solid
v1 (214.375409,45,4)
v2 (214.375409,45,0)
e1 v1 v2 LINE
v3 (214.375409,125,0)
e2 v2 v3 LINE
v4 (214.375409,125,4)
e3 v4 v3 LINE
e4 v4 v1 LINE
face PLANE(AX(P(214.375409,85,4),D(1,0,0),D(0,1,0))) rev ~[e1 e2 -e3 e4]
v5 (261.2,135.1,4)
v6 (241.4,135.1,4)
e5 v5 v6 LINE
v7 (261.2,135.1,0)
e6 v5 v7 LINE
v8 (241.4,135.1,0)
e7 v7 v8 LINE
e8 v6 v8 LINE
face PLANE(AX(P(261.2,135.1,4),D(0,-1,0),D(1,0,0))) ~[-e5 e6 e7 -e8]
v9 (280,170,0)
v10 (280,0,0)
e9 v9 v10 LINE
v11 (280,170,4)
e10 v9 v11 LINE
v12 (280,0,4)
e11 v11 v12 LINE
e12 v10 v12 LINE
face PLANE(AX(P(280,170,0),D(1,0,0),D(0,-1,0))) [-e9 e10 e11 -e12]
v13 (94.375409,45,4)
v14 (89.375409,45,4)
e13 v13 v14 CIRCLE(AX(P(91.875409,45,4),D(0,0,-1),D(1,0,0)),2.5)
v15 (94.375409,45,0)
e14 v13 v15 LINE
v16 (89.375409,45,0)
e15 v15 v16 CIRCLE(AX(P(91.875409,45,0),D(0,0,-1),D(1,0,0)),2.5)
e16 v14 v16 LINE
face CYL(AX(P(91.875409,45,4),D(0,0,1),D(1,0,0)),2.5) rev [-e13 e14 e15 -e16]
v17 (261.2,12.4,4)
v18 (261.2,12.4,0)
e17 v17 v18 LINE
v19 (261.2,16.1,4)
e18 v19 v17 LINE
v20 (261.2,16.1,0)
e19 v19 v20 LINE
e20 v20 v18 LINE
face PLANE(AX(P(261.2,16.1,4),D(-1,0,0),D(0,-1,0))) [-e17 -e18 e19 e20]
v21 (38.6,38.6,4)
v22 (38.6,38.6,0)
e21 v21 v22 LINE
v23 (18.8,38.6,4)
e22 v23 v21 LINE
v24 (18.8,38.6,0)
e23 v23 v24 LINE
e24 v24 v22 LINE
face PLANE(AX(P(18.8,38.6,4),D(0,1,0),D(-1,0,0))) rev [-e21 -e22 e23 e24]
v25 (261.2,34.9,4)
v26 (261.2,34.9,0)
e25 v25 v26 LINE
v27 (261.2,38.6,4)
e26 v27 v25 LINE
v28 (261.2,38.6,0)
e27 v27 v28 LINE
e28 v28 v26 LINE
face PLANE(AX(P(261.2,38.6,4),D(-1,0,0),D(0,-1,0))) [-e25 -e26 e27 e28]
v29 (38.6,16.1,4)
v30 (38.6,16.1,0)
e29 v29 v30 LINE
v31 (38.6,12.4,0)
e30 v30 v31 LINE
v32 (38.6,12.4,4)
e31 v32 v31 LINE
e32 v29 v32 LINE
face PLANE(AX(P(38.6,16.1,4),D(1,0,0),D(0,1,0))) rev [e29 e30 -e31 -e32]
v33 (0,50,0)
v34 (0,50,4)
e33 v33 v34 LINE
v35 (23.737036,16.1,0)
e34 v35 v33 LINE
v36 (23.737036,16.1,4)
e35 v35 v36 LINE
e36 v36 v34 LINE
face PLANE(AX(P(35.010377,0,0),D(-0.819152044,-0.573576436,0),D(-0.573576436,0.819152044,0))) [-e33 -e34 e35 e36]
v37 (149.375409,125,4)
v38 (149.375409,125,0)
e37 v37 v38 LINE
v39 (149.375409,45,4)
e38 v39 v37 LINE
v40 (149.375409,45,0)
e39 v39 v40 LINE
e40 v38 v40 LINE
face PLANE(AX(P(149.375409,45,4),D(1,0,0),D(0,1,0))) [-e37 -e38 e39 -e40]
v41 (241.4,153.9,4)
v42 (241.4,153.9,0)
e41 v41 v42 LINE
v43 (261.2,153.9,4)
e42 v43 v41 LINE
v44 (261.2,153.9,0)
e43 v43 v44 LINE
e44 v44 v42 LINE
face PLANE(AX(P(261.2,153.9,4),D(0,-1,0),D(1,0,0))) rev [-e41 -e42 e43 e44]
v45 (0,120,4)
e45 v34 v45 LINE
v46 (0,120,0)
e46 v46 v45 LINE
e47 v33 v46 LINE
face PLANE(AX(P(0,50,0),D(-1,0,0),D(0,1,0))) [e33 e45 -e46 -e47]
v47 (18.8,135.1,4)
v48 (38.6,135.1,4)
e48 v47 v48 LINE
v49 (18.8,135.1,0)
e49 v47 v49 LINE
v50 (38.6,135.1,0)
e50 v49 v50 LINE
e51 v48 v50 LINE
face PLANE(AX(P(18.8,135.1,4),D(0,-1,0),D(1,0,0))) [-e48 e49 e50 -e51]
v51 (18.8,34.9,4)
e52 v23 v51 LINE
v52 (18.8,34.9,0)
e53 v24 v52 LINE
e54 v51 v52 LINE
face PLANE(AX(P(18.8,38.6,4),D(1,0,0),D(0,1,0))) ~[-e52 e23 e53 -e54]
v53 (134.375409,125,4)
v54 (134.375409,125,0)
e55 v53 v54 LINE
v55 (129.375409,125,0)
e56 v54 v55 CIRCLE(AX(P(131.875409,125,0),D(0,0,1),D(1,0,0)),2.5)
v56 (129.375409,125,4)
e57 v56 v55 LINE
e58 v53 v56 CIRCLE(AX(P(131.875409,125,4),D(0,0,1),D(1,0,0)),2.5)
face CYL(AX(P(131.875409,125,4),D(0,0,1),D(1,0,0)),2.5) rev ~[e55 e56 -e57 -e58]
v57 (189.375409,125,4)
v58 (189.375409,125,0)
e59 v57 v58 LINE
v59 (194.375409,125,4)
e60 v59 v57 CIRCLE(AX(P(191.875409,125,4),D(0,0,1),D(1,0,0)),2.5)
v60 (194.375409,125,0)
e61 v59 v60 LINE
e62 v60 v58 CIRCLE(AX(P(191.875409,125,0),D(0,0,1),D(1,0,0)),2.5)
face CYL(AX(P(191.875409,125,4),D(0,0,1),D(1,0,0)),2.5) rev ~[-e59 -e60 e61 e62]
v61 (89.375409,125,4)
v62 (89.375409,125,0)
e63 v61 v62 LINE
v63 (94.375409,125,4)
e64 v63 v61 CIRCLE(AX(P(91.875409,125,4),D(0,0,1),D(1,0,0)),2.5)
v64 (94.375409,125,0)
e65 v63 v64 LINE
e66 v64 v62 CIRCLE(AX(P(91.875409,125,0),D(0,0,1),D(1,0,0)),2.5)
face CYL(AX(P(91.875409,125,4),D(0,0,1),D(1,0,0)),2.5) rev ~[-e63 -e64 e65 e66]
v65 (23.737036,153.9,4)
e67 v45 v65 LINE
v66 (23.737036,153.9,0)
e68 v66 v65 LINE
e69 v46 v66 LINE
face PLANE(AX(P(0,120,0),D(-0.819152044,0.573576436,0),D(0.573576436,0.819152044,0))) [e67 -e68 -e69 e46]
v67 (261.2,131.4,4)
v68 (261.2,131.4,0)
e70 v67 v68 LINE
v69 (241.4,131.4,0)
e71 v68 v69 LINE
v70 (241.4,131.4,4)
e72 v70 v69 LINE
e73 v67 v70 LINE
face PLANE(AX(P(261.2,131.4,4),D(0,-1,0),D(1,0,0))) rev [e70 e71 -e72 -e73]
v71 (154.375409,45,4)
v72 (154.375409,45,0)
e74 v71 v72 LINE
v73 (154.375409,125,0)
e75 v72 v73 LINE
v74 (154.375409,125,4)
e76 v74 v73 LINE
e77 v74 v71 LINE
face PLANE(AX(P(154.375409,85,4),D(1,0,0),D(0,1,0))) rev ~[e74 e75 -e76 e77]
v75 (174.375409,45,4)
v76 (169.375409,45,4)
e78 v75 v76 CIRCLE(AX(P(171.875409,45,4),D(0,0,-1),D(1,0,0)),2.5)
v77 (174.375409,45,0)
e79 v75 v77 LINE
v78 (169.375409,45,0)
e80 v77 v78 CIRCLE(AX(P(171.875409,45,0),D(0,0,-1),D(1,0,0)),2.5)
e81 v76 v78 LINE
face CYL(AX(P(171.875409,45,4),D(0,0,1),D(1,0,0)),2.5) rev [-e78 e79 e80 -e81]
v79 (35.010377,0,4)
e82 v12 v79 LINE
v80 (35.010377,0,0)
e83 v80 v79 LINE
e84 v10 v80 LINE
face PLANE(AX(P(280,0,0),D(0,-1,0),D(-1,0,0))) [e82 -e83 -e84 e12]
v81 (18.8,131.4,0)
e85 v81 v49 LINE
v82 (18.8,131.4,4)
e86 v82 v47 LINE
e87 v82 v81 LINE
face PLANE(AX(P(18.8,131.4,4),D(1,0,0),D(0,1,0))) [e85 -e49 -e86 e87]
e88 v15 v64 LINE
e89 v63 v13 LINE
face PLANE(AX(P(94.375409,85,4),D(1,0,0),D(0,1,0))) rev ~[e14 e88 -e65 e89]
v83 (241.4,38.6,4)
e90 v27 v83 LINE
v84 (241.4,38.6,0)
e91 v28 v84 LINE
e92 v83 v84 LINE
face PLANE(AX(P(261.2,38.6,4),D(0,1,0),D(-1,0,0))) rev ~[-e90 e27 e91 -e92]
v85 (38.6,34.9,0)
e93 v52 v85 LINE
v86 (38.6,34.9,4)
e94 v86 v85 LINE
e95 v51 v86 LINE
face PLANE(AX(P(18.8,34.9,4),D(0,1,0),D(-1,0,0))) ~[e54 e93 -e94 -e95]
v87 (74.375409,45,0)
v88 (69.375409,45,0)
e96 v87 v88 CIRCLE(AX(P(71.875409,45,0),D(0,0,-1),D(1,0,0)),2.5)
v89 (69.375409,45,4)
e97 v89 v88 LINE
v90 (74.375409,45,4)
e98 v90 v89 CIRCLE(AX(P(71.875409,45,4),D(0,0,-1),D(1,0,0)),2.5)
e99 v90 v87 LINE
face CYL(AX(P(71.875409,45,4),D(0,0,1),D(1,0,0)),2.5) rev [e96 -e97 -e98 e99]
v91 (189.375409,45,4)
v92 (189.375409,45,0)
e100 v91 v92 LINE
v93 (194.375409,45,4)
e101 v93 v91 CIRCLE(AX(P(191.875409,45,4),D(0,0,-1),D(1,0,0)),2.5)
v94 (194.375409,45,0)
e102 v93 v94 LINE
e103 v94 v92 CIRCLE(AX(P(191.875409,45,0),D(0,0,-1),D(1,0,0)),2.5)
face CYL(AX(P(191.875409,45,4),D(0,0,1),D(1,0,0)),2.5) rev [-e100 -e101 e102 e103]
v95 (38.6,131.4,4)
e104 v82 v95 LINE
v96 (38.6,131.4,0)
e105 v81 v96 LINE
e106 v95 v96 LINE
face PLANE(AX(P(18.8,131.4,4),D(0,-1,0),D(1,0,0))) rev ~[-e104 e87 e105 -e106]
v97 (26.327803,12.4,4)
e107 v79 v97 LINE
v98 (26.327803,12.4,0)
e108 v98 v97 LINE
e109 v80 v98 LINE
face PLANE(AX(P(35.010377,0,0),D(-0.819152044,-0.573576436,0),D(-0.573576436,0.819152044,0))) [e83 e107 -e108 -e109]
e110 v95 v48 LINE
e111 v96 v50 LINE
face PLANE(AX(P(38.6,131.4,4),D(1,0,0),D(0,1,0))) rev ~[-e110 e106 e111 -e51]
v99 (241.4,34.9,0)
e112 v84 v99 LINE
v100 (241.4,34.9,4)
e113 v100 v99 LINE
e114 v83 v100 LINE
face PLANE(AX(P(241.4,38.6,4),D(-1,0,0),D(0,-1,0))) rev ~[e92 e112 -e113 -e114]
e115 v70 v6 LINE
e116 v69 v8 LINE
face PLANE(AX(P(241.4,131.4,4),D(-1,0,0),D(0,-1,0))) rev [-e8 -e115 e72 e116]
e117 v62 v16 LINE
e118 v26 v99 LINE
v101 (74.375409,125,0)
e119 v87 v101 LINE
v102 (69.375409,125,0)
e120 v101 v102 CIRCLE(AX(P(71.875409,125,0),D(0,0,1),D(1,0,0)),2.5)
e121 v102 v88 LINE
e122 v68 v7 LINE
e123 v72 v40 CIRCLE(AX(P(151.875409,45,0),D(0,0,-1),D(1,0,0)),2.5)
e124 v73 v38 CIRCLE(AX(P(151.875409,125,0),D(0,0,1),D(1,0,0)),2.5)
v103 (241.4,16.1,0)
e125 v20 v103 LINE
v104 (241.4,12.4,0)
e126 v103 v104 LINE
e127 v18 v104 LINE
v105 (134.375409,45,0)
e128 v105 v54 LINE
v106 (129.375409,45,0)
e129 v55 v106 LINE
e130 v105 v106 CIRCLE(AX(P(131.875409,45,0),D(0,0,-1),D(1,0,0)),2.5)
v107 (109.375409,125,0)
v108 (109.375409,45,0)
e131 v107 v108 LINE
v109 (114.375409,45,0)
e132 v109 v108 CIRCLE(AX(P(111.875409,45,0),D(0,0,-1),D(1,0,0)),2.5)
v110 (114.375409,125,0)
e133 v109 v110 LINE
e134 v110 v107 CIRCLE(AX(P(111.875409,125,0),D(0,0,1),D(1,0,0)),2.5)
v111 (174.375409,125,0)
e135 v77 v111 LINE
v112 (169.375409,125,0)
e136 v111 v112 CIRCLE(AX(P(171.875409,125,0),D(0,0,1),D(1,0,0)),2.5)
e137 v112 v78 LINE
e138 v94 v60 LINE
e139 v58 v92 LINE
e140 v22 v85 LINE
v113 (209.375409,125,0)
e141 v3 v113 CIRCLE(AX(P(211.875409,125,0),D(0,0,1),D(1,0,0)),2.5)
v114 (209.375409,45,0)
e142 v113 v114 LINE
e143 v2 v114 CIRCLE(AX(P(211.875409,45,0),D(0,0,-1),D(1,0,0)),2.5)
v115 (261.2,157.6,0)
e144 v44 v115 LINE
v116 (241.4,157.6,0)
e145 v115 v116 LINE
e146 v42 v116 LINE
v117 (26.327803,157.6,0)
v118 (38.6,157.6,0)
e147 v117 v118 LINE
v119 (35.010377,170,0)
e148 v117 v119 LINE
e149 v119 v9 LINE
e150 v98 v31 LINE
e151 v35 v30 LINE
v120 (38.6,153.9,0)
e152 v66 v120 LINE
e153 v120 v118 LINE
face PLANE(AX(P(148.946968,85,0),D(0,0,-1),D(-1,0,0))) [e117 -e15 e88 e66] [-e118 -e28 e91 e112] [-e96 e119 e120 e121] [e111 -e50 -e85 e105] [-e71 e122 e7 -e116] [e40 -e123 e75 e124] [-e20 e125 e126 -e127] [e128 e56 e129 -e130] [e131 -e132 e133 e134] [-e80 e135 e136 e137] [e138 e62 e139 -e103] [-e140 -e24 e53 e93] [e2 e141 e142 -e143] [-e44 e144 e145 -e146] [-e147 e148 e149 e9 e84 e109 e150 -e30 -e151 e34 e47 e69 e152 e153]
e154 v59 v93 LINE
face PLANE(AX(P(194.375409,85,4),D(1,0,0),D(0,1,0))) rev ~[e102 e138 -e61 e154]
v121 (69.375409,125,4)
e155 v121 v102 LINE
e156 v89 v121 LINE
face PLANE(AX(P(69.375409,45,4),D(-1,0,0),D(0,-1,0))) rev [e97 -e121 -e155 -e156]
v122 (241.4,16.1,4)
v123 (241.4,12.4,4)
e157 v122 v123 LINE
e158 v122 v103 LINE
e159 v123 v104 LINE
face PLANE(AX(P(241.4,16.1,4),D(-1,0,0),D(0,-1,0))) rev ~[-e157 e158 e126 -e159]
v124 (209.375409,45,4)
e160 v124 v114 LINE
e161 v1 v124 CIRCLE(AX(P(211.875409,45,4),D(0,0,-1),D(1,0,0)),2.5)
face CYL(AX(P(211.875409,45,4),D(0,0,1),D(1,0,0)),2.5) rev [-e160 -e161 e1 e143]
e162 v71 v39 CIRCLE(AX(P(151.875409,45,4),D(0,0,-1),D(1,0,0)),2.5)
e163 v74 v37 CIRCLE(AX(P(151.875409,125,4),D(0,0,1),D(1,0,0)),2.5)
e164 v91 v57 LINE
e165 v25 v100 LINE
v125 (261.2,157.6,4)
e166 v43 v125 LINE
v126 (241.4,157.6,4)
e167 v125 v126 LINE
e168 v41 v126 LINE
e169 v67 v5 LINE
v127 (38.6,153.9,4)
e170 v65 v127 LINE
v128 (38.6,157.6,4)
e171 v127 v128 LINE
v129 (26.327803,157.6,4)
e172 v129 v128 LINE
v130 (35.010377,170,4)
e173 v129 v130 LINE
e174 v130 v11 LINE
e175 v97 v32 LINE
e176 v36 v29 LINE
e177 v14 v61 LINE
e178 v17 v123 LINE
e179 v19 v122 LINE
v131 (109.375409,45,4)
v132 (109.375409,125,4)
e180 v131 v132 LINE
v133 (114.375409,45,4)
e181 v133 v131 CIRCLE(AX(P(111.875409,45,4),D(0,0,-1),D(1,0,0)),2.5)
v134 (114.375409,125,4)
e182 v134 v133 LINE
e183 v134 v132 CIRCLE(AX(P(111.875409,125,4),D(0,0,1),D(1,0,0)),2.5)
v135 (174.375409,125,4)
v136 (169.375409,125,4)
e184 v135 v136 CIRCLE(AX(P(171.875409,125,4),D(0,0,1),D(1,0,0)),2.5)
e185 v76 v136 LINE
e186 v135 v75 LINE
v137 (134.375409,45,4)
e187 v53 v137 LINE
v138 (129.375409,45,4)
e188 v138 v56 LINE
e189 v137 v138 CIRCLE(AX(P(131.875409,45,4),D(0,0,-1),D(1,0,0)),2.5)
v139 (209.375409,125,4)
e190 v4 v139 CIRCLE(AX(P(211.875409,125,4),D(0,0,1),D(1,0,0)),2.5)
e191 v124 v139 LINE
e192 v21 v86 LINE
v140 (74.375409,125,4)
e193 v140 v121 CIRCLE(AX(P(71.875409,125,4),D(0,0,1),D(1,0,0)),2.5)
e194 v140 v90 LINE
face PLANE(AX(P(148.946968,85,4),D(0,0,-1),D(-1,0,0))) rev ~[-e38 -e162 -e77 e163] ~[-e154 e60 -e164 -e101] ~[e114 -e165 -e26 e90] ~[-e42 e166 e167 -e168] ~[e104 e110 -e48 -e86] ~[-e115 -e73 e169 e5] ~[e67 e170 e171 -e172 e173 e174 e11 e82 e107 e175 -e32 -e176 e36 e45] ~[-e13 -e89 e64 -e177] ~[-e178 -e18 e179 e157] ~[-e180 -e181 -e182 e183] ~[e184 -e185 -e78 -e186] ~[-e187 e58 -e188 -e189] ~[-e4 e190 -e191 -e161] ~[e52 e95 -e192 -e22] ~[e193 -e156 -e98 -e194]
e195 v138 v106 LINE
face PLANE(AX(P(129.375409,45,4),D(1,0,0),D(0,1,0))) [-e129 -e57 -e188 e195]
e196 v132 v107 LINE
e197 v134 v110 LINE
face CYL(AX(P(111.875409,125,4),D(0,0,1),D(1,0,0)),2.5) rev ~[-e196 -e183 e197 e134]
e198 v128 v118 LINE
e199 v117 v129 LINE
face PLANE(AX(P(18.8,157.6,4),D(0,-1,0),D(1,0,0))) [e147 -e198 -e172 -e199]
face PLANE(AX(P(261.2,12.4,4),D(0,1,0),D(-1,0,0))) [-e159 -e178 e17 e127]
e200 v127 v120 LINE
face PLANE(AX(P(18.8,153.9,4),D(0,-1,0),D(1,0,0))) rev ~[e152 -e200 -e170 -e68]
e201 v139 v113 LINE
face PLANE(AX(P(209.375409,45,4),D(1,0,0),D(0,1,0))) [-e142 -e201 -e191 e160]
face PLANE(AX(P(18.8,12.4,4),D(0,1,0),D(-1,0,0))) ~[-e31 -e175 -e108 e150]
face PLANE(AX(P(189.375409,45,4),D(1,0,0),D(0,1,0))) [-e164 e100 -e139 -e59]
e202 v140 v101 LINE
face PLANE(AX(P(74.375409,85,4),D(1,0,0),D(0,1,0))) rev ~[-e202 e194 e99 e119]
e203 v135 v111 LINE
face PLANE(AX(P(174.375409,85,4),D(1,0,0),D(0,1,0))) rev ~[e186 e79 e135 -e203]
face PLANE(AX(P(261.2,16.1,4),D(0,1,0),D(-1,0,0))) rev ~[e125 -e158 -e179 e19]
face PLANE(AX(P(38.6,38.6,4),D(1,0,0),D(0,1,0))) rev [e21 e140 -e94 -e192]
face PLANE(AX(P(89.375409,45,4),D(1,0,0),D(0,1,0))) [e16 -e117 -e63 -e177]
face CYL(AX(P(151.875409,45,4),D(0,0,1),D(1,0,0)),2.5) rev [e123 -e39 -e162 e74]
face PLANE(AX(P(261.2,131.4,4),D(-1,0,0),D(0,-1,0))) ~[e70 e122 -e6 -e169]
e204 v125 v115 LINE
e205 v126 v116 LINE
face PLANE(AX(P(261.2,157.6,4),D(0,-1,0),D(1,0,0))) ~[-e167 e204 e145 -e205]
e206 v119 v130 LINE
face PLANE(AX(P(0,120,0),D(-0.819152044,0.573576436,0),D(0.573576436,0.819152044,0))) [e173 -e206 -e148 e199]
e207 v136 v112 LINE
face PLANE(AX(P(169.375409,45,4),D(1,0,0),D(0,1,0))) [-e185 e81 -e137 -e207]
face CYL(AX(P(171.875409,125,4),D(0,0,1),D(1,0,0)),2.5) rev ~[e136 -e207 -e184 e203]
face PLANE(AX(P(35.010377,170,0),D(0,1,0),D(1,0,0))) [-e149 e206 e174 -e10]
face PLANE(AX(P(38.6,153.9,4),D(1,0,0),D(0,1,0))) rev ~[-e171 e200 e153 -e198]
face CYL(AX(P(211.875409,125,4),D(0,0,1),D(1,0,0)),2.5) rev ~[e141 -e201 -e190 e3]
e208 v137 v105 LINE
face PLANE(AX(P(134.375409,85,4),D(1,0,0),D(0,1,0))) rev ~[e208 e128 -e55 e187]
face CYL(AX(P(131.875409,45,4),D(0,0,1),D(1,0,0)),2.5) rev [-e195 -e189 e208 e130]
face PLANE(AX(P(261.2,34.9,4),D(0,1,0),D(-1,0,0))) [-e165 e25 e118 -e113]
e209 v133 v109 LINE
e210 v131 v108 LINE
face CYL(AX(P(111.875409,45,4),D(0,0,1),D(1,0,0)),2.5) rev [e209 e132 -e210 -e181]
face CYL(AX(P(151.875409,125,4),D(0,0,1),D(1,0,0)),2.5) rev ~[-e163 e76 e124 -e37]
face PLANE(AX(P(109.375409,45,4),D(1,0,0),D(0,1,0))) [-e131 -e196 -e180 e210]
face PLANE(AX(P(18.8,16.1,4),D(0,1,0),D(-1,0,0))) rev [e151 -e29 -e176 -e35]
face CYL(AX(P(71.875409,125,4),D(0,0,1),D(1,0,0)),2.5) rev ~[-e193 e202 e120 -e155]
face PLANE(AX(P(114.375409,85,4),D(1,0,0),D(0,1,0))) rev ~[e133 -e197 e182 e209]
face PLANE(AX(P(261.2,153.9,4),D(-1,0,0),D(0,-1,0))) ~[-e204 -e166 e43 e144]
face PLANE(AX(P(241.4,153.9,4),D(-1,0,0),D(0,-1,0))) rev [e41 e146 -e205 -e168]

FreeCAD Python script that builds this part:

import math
import FreeCAD as App
import Part
import Sketcher
Q = App.Units.Quantity

doc = App.newDocument("Part")
body = doc.addObject("PartDesign::Body", "Body")

# Sketch on XY plane
sketch1 = body.newObject("Sketcher::SketchObject", "Sketch")
sketch1.AttachmentSupport = (doc.getObject("XY_Plane"), [""])
sketch1.MapMode = "FlatFace"
sketch1.addGeometry(Part.LineSegment(App.Vector(0, 50, 0), App.Vector(35.010377, 0, 0)), False)
sketch1.addGeometry(Part.LineSegment(App.Vector(35.010377, 0, 0), App.Vector(280, 0, 0)), False)
sketch1.addGeometry(Part.LineSegment(App.Vector(280, 0, 0), App.Vector(280, 170, 0)), False)
sketch1.addGeometry(Part.LineSegment(App.Vector(280, 170, 0), App.Vector(35.010377, 170, 0)), False)
sketch1.addGeometry(Part.LineSegment(App.Vector(35.010377, 170, 0), App.Vector(0, 120, 0)), False)
sketch1.addGeometry(Part.LineSegment(App.Vector(0, 120, 0), App.Vector(0, 50, 0)), False)
sketch1.addConstraint(Sketcher.Constraint("Coincident", 0, 2, 1, 1))
sketch1.addConstraint(Sketcher.Constraint("Coincident", 1, 2, 2, 1))
sketch1.addConstraint(Sketcher.Constraint("Coincident", 2, 2, 3, 1))
sketch1.addConstraint(Sketcher.Constraint("Coincident", 3, 2, 4, 1))
sketch1.addConstraint(Sketcher.Constraint("Coincident", 4, 2, 5, 1))
sketch1.addConstraint(Sketcher.Constraint("Coincident", 5, 2, 0, 1))
sketch1.addConstraint(Sketcher.Constraint("Horizontal", 1))
sketch1.addConstraint(Sketcher.Constraint("Vertical", 2))
sketch1.addConstraint(Sketcher.Constraint("Horizontal", 3))
sketch1.addConstraint(Sketcher.Constraint("Vertical", 5))
sketch1.addConstraint(Sketcher.Constraint("PointOnObject", 0, 2, -1))
sketch1.addConstraint(Sketcher.Constraint("PointOnObject", 4, 2, -2))
sketch1.addConstraint(Sketcher.Constraint("Vertical", 0, 2, 3, 2))
sketch1.addConstraint(Sketcher.Constraint("Equal", 0, 4))
sketch1.addConstraint(Sketcher.Constraint("DistanceY", 2, 1, 2, 2, 170.0))
sketch1.addConstraint(Sketcher.Constraint("DistanceY", 5, 2, 5, 1, 70.0))
sketch1.addConstraint(Sketcher.Constraint("Angle", 0, Q("-55 deg")))
sketch1.addConstraint(Sketcher.Constraint("DistanceX", -1, 1, 1, 2, 280.0))
pad1 = body.newObject("PartDesign::Pad", "Pad")
pad1.Profile = sketch1
pad1.Length = 4

# Sketch on XY plane
sketch2 = body.newObject("Sketcher::SketchObject", "Sketch001")
sketch2.AttachmentSupport = (doc.getObject("XY_Plane"), [""])
sketch2.MapMode = "FlatFace"
sketch2.AttachmentOffset = App.Placement(App.Vector(0, 0, 4), App.Rotation())
sketch2.addGeometry(Part.LineSegment(App.Vector(18.8, 157.6, 0), App.Vector(18.8, 153.9, 0)), False)
sketch2.addGeometry(Part.LineSegment(App.Vector(18.8, 153.9, 0), App.Vector(38.6, 153.9, 0)), False)
sketch2.addGeometry(Part.LineSegment(App.Vector(38.6, 153.9, 0), App.Vector(38.6, 157.6, 0)), False)
sketch2.addGeometry(Part.LineSegment(App.Vector(38.6, 157.6, 0), App.Vector(18.8, 157.6, 0)), False)
sketch2.addGeometry(Part.LineSegment(App.Vector(18.8, 135.1, 0), App.Vector(18.8, 131.4, 0)), False)
sketch2.addGeometry(Part.LineSegment(App.Vector(18.8, 131.4, 0), App.Vector(38.6, 131.4, 0)), False)
sketch2.addGeometry(Part.LineSegment(App.Vector(38.6, 131.4, 0), App.Vector(38.6, 135.1, 0)), False)
sketch2.addGeometry(Part.LineSegment(App.Vector(38.6, 135.1, 0), App.Vector(18.8, 135.1, 0)), False)
sketch2.addConstraint(Sketcher.Constraint("Coincident", 0, 2, 1, 1))
sketch2.addConstraint(Sketcher.Constraint("Coincident", 1, 2, 2, 1))
sketch2.addConstraint(Sketcher.Constraint("Coincident", 2, 2, 3, 1))
sketch2.addConstraint(Sketcher.Constraint("Coincident", 3, 2, 0, 1))
sketch2.addConstraint(Sketcher.Constraint("Coincident", 4, 2, 5, 1))
sketch2.addConstraint(Sketcher.Constraint("Coincident", 5, 2, 6, 1))
sketch2.addConstraint(Sketcher.Constraint("Coincident", 6, 2, 7, 1))
sketch2.addConstraint(Sketcher.Constraint("Coincident", 7, 2, 4, 1))
sketch2.addConstraint(Sketcher.Constraint("Vertical", 0))
sketch2.addConstraint(Sketcher.Constraint("Horizontal", 1))
sketch2.addConstraint(Sketcher.Constraint("Vertical", 2))
sketch2.addConstraint(Sketcher.Constraint("Horizontal", 3))
sketch2.addConstraint(Sketcher.Constraint("Vertical", 4))
sketch2.addConstraint(Sketcher.Constraint("Horizontal", 5))
sketch2.addConstraint(Sketcher.Constraint("Vertical", 6))
sketch2.addConstraint(Sketcher.Constraint("Horizontal", 7))
sketch2.addConstraint(Sketcher.Constraint("Vertical", 3, 2, 4, 2))
sketch2.addConstraint(Sketcher.Constraint("Vertical", 2, 2, 5, 2))
sketch2.addConstraint(Sketcher.Constraint("Equal", 2, 4))
sketch2.addConstraint(Sketcher.Constraint("DistanceX", 1, 1, 1, 2, 19.8))
sketch2.addConstraint(Sketcher.Constraint("DistanceY", 0, 2, 0, 1, 3.7))
sketch2.addConstraint(Sketcher.Constraint("DistanceX", -1, 1, 0, 2, 18.8))
sketch2.addConstraint(Sketcher.Constraint("DistanceY", -1, 1, 0, 2, 153.9))
sketch2.addConstraint(Sketcher.Constraint("DistanceY", -1, 1, 4, 2, 131.4))
pocket1 = body.newObject("PartDesign::Pocket", "Pocket")
pocket1.Profile = sketch2
pocket1.Length = 4
doc.recompute()

datumplane = body.newObject("PartDesign::Plane", "DatumPlane")
datumplane.AttachmentSupport = (doc.getObject("XZ_Plane"), [""])
datumplane.MapMode = "FlatFace"
datumplane.AttachmentOffset = App.Placement(App.Vector(0, 0, -85), App.Rotation())
mirrored = body.newObject("PartDesign::Mirrored", "Mirrored")
mirrored.Originals = [pocket1]
mirrored.MirrorPlane = (datumplane, [""])
body.Tip = mirrored
doc.recompute()

datumplane2 = body.newObject("PartDesign::Plane", "DatumPlane001")
datumplane2.AttachmentSupport = (doc.getObject("YZ_Plane"), [""])
datumplane2.MapMode = "FlatFace"
datumplane2.AttachmentOffset = App.Placement(App.Vector(0, 0, 140), App.Rotation())
mirrored2 = body.newObject("PartDesign::Mirrored", "Mirrored001")
mirrored2.Originals = [pocket1]
mirrored2.MirrorPlane = (datumplane2, [""])
body.Tip = mirrored2

# Sketch on XY plane
sketch3 = body.newObject("Sketcher::SketchObject", "Sketch002")
sketch3.AttachmentSupport = (doc.getObject("XY_Plane"), [""])
sketch3.MapMode = "FlatFace"
sketch3.AttachmentOffset = App.Placement(App.Vector(0, 0, 4), App.Rotation())
sketch3.addGeometry(Part.LineSegment(App.Vector(261.2, 12.4, 0), App.Vector(261.2, 16.1, 0)), False)
sketch3.addGeometry(Part.LineSegment(App.Vector(261.2, 16.1, 0), App.Vector(241.4, 16.1, 0)), False)
sketch3.addGeometry(Part.LineSegment(App.Vector(241.4, 16.1, 0), App.Vector(241.4, 12.4, 0)), False)
sketch3.addGeometry(Part.LineSegment(App.Vector(241.4, 12.4, 0), App.Vector(261.2, 12.4, 0)), False)
sketch3.addGeometry(Part.LineSegment(App.Vector(261.2, 34.9, 0), App.Vector(261.2, 38.6, 0)), False)
sketch3.addGeometry(Part.LineSegment(App.Vector(261.2, 38.6, 0), App.Vector(241.4, 38.6, 0)), False)
sketch3.addGeometry(Part.LineSegment(App.Vector(241.4, 38.6, 0), App.Vector(241.4, 34.9, 0)), False)
sketch3.addGeometry(Part.LineSegment(App.Vector(241.4, 34.9, 0), App.Vector(261.2, 34.9, 0)), False)
sketch3.addConstraint(Sketcher.Constraint("Coincident", 0, 2, 1, 1))
sketch3.addConstraint(Sketcher.Constraint("Coincident", 1, 2, 2, 1))
sketch3.addConstraint(Sketcher.Constraint("Coincident", 2, 2, 3, 1))
sketch3.addConstraint(Sketcher.Constraint("Coincident", 3, 2, 0, 1))
sketch3.addConstraint(Sketcher.Constraint("Coincident", 4, 2, 5, 1))
sketch3.addConstraint(Sketcher.Constraint("Coincident", 5, 2, 6, 1))
sketch3.addConstraint(Sketcher.Constraint("Coincident", 6, 2, 7, 1))
sketch3.addConstraint(Sketcher.Constraint("Coincident", 7, 2, 4, 1))
sketch3.addConstraint(Sketcher.Constraint("Vertical", 0))
sketch3.addConstraint(Sketcher.Constraint("Horizontal", 1))
sketch3.addConstraint(Sketcher.Constraint("Vertical", 2))
sketch3.addConstraint(Sketcher.Constraint("Horizontal", 3))
sketch3.addConstraint(Sketcher.Constraint("Vertical", 4))
sketch3.addConstraint(Sketcher.Constraint("Horizontal", 5))
sketch3.addConstraint(Sketcher.Constraint("Vertical", 6))
sketch3.addConstraint(Sketcher.Constraint("Horizontal", 7))
sketch3.addConstraint(Sketcher.Constraint("Vertical", 3, 2, 4, 2))
sketch3.addConstraint(Sketcher.Constraint("Vertical", 2, 2, 5, 2))
sketch3.addConstraint(Sketcher.Constraint("Equal", 2, 4))
sketch3.addConstraint(Sketcher.Constraint("DistanceX", 1, 2, 1, 1, 19.8))
sketch3.addConstraint(Sketcher.Constraint("DistanceY", 0, 1, 0, 2, 3.7))
sketch3.addConstraint(Sketcher.Constraint("DistanceX", -1, 1, 0, 2, 261.2))
sketch3.addConstraint(Sketcher.Constraint("DistanceY", -1, 1, 0, 2, 16.1))
sketch3.addConstraint(Sketcher.Constraint("DistanceY", -1, 1, 4, 2, 38.6))
pocket2 = body.newObject("PartDesign::Pocket", "Pocket001")
pocket2.Profile = sketch3
pocket2.Length = 4

# Sketch on XY plane
sketch4 = body.newObject("Sketcher::SketchObject", "Sketch003")
sketch4.AttachmentSupport = (doc.getObject("XY_Plane"), [""])
sketch4.MapMode = "FlatFace"
sketch4.AttachmentOffset = App.Placement(App.Vector(0, 0, 4), App.Rotation())
sketch4.addGeometry(Part.LineSegment(App.Vector(69.375409, 85, 0), App.Vector(74.375409, 85, 0)), False)
sketch4.addGeometry(Part.LineSegment(App.Vector(74.375409, 85, 0), App.Vector(74.375409, 125, 0)), False)
sketch4.addGeometry(Part.ArcOfCircle(Part.Circle(App.Vector(71.875409, 125, 0), App.Vector(0, 0, 1), 2.5), math.radians(0), math.radians(180)), False)
sketch4.addGeometry(Part.LineSegment(App.Vector(69.375409, 125, 0), App.Vector(69.375409, 85, 0)), False)
sketch4.addConstraint(Sketcher.Constraint("Coincident", 0, 2, 1, 1))
sketch4.addConstraint(Sketcher.Constraint("Tangent", 1, 2, 2, 1))
sketch4.addConstraint(Sketcher.Constraint("Tangent", 2, 2, 3, 1))
sketch4.addConstraint(Sketcher.Constraint("Coincident", 3, 2, 0, 1))
sketch4.addConstraint(Sketcher.Constraint("Horizontal", 0))
sketch4.addConstraint(Sketcher.Constraint("Vertical", 1))
sketch4.addConstraint(Sketcher.Constraint("Vertical", 3))
sketch4.addConstraint(Sketcher.Constraint("Radius", 2, 2.5))
sketch4.addConstraint(Sketcher.Constraint("DistanceY", 1, 1, 1, 2, 40.0))
sketch4.addConstraint(Sketcher.Constraint("DistanceY", -1, 1, 2, 3, 125.0))
sketch4.addConstraint(Sketcher.Constraint("DistanceX", -1, 1, 2, 3, 71.875409))
pocket3 = body.newObject("PartDesign::Pocket", "Pocket002")
pocket3.Profile = sketch4
pocket3.Length = 4
doc.recompute()

datumplane3 = body.newObject("PartDesign::Plane", "DatumPlane002")
datumplane3.AttachmentSupport = (doc.getObject("XZ_Plane"), [""])
datumplane3.MapMode = "FlatFace"
datumplane3.AttachmentOffset = App.Placement(App.Vector(0, 0, -85), App.Rotation())
mirrored3 = body.newObject("PartDesign::Mirrored", "Mirrored002")
mirrored3.Originals = [pocket3]
mirrored3.MirrorPlane = (datumplane3, [""])
body.Tip = mirrored3
doc.recompute()

linearpattern = body.newObject("PartDesign::LinearPattern", "LinearPattern")
linearpattern.Originals = [pocket3]
linearpattern.Direction = (doc.getObject("X_Axis"), [""])
linearpattern.Mode = "offset"
linearpattern.Offset = 20
linearpattern.Occurrences = 8
body.Tip = linearpattern

# Sketch on XY plane
sketch5 = body.newObject("Sketcher::SketchObject", "Sketch004")
sketch5.AttachmentSupport = (doc.getObject("XY_Plane"), [""])
sketch5.MapMode = "FlatFace"
sketch5.AttachmentOffset = App.Placement(App.Vector(0, 0, 4), App.Rotation())
sketch5.addGeometry(Part.LineSegment(App.Vector(94.375409, 85, 0), App.Vector(89.375409, 85, 0)), False)
sketch5.addGeometry(Part.LineSegment(App.Vector(89.375409, 85, 0), App.Vector(89.375409, 45, 0)), False)
sketch5.addGeometry(Part.ArcOfCircle(Part.Circle(App.Vector(91.875409, 45, 0), App.Vector(0, 0, 1), 2.5), math.radians(180), math.radians(360)), False)
sketch5.addGeometry(Part.LineSegment(App.Vector(94.375409, 45, 0), App.Vector(94.375409, 85, 0)), False)
sketch5.addConstraint(Sketcher.Constraint("Coincident", 0, 2, 1, 1))
sketch5.addConstraint(Sketcher.Constraint("Tangent", 1, 2, 2, 1))
sketch5.addConstraint(Sketcher.Constraint("Tangent", 2, 2, 3, 1))
sketch5.addConstraint(Sketcher.Constraint("Coincident", 3, 2, 0, 1))
sketch5.addConstraint(Sketcher.Constraint("Horizontal", 0))
sketch5.addConstraint(Sketcher.Constraint("Vertical", 1))
sketch5.addConstraint(Sketcher.Constraint("Vertical", 3))
sketch5.addConstraint(Sketcher.Constraint("Radius", 2, 2.5))
sketch5.addConstraint(Sketcher.Constraint("DistanceY", 1, 2, 1, 1, 40.0))
sketch5.addConstraint(Sketcher.Constraint("DistanceY", -1, 1, 2, 3, 45.0))
sketch5.addConstraint(Sketcher.Constraint("DistanceX", -1, 1, 2, 3, 91.875409))
pocket4 = body.newObject("PartDesign::Pocket", "Pocket003")
pocket4.Profile = sketch5
pocket4.Length = 4

# Sketch on XY plane
sketch6 = body.newObject("Sketcher::SketchObject", "Sketch005")
sketch6.AttachmentSupport = (doc.getObject("XY_Plane"), [""])
sketch6.MapMode = "FlatFace"
sketch6.AttachmentOffset = App.Placement(App.Vector(0, 0, 4), App.Rotation())
sketch6.addGeometry(Part.LineSegment(App.Vector(114.375409, 85, 0), App.Vector(109.375409, 85, 0)), False)
sketch6.addGeometry(Part.LineSegment(App.Vector(109.375409, 85, 0), App.Vector(109.375409, 45, 0)), False)
sketch6.addGeometry(Part.ArcOfCircle(Part.Circle(App.Vector(111.875409, 45, 0), App.Vector(0, 0, 1), 2.5), math.radians(180), math.radians(360)), False)
sketch6.addGeometry(Part.LineSegment(App.Vector(114.375409, 45, 0), App.Vector(114.375409, 85, 0)), False)
sketch6.addConstraint(Sketcher.Constraint("Coincident", 0, 2, 1, 1))
sketch6.addConstraint(Sketcher.Constraint("Tangent", 1, 2, 2, 1))
sketch6.addConstraint(Sketcher.Constraint("Tangent", 2, 2, 3, 1))
sketch6.addConstraint(Sketcher.Constraint("Coincident", 3, 2, 0, 1))
sketch6.addConstraint(Sketcher.Constraint("Horizontal", 0))
sketch6.addConstraint(Sketcher.Constraint("Vertical", 1))
sketch6.addConstraint(Sketcher.Constraint("Vertical", 3))
sketch6.addConstraint(Sketcher.Constraint("Radius", 2, 2.5))
sketch6.addConstraint(Sketcher.Constraint("DistanceY", 1, 2, 1, 1, 40.0))
sketch6.addConstraint(Sketcher.Constraint("DistanceY", -1, 1, 2, 3, 45.0))
sketch6.addConstraint(Sketcher.Constraint("DistanceX", -1, 1, 2, 3, 111.875409))
pocket5 = body.newObject("PartDesign::Pocket", "Pocket004")
pocket5.Profile = sketch6
pocket5.Length = 4

# Sketch on XY plane
sketch7 = body.newObject("Sketcher::SketchObject", "Sketch006")
sketch7.AttachmentSupport = (doc.getObject("XY_Plane"), [""])
sketch7.MapMode = "FlatFace"
sketch7.AttachmentOffset = App.Placement(App.Vector(0, 0, 4), App.Rotation())
sketch7.addGeometry(Part.LineSegment(App.Vector(134.375409, 85, 0), App.Vector(129.375409, 85, 0)), False)
sketch7.addGeometry(Part.LineSegment(App.Vector(129.375409, 85, 0), App.Vector(129.375409, 45, 0)), False)
sketch7.addGeometry(Part.ArcOfCircle(Part.Circle(App.Vector(131.875409, 45, 0), App.Vector(0, 0, 1), 2.5), math.radians(180), math.radians(360)), False)
sketch7.addGeometry(Part.LineSegment(App.Vector(134.375409, 45, 0), App.Vector(134.375409, 85, 0)), False)
sketch7.addConstraint(Sketcher.Constraint("Coincident", 0, 2, 1, 1))
sketch7.addConstraint(Sketcher.Constraint("Tangent", 1, 2, 2, 1))
sketch7.addConstraint(Sketcher.Constraint("Tangent", 2, 2, 3, 1))
sketch7.addConstraint(Sketcher.Constraint("Coincident", 3, 2, 0, 1))
sketch7.addConstraint(Sketcher.Constraint("Horizontal", 0))
sketch7.addConstraint(Sketcher.Constraint("Vertical", 1))
sketch7.addConstraint(Sketcher.Constraint("Vertical", 3))
sketch7.addConstraint(Sketcher.Constraint("Radius", 2, 2.5))
sketch7.addConstraint(Sketcher.Constraint("DistanceY", 1, 2, 1, 1, 40.0))
sketch7.addConstraint(Sketcher.Constraint("DistanceY", -1, 1, 2, 3, 45.0))
sketch7.addConstraint(Sketcher.Constraint("DistanceX", -1, 1, 2, 3, 131.875409))
pocket6 = body.newObject("PartDesign::Pocket", "Pocket005")
pocket6.Profile = sketch7
pocket6.Length = 4

# Sketch on XY plane
sketch8 = body.newObject("Sketcher::SketchObject", "Sketch007")
sketch8.AttachmentSupport = (doc.getObject("XY_Plane"), [""])
sketch8.MapMode = "FlatFace"
sketch8.AttachmentOffset = App.Placement(App.Vector(0, 0, 4), App.Rotation())
sketch8.addGeometry(Part.LineSegment(App.Vector(154.375409, 85, 0), App.Vector(149.375409, 85, 0)), False)
sketch8.addGeometry(Part.LineSegment(App.Vector(149.375409, 85, 0), App.Vector(149.375409, 45, 0)), False)
sketch8.addGeometry(Part.ArcOfCircle(Part.Circle(App.Vector(151.875409, 45, 0), App.Vector(0, 0, 1), 2.5), math.radians(180), math.radians(360)), False)
sketch8.addGeometry(Part.LineSegment(App.Vector(154.375409, 45, 0), App.Vector(154.375409, 85, 0)), False)
sketch8.addConstraint(Sketcher.Constraint("Coincident", 0, 2, 1, 1))
sketch8.addConstraint(Sketcher.Constraint("Tangent", 1, 2, 2, 1))
sketch8.addConstraint(Sketcher.Constraint("Tangent", 2, 2, 3, 1))
sketch8.addConstraint(Sketcher.Constraint("Coincident", 3, 2, 0, 1))
sketch8.addConstraint(Sketcher.Constraint("Horizontal", 0))
sketch8.addConstraint(Sketcher.Constraint("Vertical", 1))
sketch8.addConstraint(Sketcher.Constraint("Vertical", 3))
sketch8.addConstraint(Sketcher.Constraint("Radius", 2, 2.5))
sketch8.addConstraint(Sketcher.Constraint("DistanceY", 1, 2, 1, 1, 40.0))
sketch8.addConstraint(Sketcher.Constraint("DistanceY", -1, 1, 2, 3, 45.0))
sketch8.addConstraint(Sketcher.Constraint("DistanceX", -1, 1, 2, 3, 151.875409))
pocket7 = body.newObject("PartDesign::Pocket", "Pocket006")
pocket7.Profile = sketch8
pocket7.Length = 4

# Sketch on XY plane
sketch9 = body.newObject("Sketcher::SketchObject", "Sketch008")
sketch9.AttachmentSupport = (doc.getObject("XY_Plane"), [""])
sketch9.MapMode = "FlatFace"
sketch9.AttachmentOffset = App.Placement(App.Vector(0, 0, 4), App.Rotation())
sketch9.addGeometry(Part.LineSegment(App.Vector(174.375409, 85, 0), App.Vector(169.375409, 85, 0)), False)
sketch9.addGeometry(Part.LineSegment(App.Vector(169.375409, 85, 0), App.Vector(169.375409, 45, 0)), False)
sketch9.addGeometry(Part.ArcOfCircle(Part.Circle(App.Vector(171.875409, 45, 0), App.Vector(0, 0, 1), 2.5), math.radians(180), math.radians(360)), False)
sketch9.addGeometry(Part.LineSegment(App.Vector(174.375409, 45, 0), App.Vector(174.375409, 85, 0)), False)
sketch9.addConstraint(Sketcher.Constraint("Coincident", 0, 2, 1, 1))
sketch9.addConstraint(Sketcher.Constraint("Tangent", 1, 2, 2, 1))
sketch9.addConstraint(Sketcher.Constraint("Tangent", 2, 2, 3, 1))
sketch9.addConstraint(Sketcher.Constraint("Coincident", 3, 2, 0, 1))
sketch9.addConstraint(Sketcher.Constraint("Horizontal", 0))
sketch9.addConstraint(Sketcher.Constraint("Vertical", 1))
sketch9.addConstraint(Sketcher.Constraint("Vertical", 3))
sketch9.addConstraint(Sketcher.Constraint("Radius", 2, 2.5))
sketch9.addConstraint(Sketcher.Constraint("DistanceY", 1, 2, 1, 1, 40.0))
sketch9.addConstraint(Sketcher.Constraint("DistanceY", -1, 1, 2, 3, 45.0))
sketch9.addConstraint(Sketcher.Constraint("DistanceX", -1, 1, 2, 3, 171.875409))
pocket8 = body.newObject("PartDesign::Pocket", "Pocket007")
pocket8.Profile = sketch9
pocket8.Length = 4

# Sketch on XY plane
sketch10 = body.newObject("Sketcher::SketchObject", "Sketch009")
sketch10.AttachmentSupport = (doc.getObject("XY_Plane"), [""])
sketch10.MapMode = "FlatFace"
sketch10.AttachmentOffset = App.Placement(App.Vector(0, 0, 4), App.Rotation())
sketch10.addGeometry(Part.LineSegment(App.Vector(194.375409, 85, 0), App.Vector(189.375409, 85, 0)), False)
sketch10.addGeometry(Part.LineSegment(App.Vector(189.375409, 85, 0), App.Vector(189.375409, 45, 0)), False)
sketch10.addGeometry(Part.ArcOfCircle(Part.Circle(App.Vector(191.875409, 45, 0), App.Vector(0, 0, 1), 2.5), math.radians(180), math.radians(360)), False)
sketch10.addGeometry(Part.LineSegment(App.Vector(194.375409, 45, 0), App.Vector(194.375409, 85, 0)), False)
sketch10.addConstraint(Sketcher.Constraint("Coincident", 0, 2, 1, 1))
sketch10.addConstraint(Sketcher.Constraint("Tangent", 1, 2, 2, 1))
sketch10.addConstraint(Sketcher.Constraint("Tangent", 2, 2, 3, 1))
sketch10.addConstraint(Sketcher.Constraint("Coincident", 3, 2, 0, 1))
sketch10.addConstraint(Sketcher.Constraint("Horizontal", 0))
sketch10.addConstraint(Sketcher.Constraint("Vertical", 1))
sketch10.addConstraint(Sketcher.Constraint("Vertical", 3))
sketch10.addConstraint(Sketcher.Constraint("Radius", 2, 2.5))
sketch10.addConstraint(Sketcher.Constraint("DistanceY", 1, 2, 1, 1, 40.0))
sketch10.addConstraint(Sketcher.Constraint("DistanceY", -1, 1, 2, 3, 45.0))
sketch10.addConstraint(Sketcher.Constraint("DistanceX", -1, 1, 2, 3, 191.875409))
pocket9 = body.newObject("PartDesign::Pocket", "Pocket008")
pocket9.Profile = sketch10
pocket9.Length = 4

# Sketch on XY plane
sketch11 = body.newObject("Sketcher::SketchObject", "Sketch010")
sketch11.AttachmentSupport = (doc.getObject("XY_Plane"), [""])
sketch11.MapMode = "FlatFace"
sketch11.AttachmentOffset = App.Placement(App.Vector(0, 0, 4), App.Rotation())
sketch11.addGeometry(Part.LineSegment(App.Vector(214.375409, 85, 0), App.Vector(209.375409, 85, 0)), False)
sketch11.addGeometry(Part.LineSegment(App.Vector(209.375409, 85, 0), App.Vector(209.375409, 45, 0)), False)
sketch11.addGeometry(Part.ArcOfCircle(Part.Circle(App.Vector(211.875409, 45, 0), App.Vector(0, 0, 1), 2.5), math.radians(180), math.radians(360)), False)
sketch11.addGeometry(Part.LineSegment(App.Vector(214.375409, 45, 0), App.Vector(214.375409, 85, 0)), False)
sketch11.addConstraint(Sketcher.Constraint("Coincident", 0, 2, 1, 1))
sketch11.addConstraint(Sketcher.Constraint("Tangent", 1, 2, 2, 1))
sketch11.addConstraint(Sketcher.Constraint("Tangent", 2, 2, 3, 1))
sketch11.addConstraint(Sketcher.Constraint("Coincident", 3, 2, 0, 1))
sketch11.addConstraint(Sketcher.Constraint("Horizontal", 0))
sketch11.addConstraint(Sketcher.Constraint("Vertical", 1))
sketch11.addConstraint(Sketcher.Constraint("Vertical", 3))
sketch11.addConstraint(Sketcher.Constraint("Radius", 2, 2.5))
sketch11.addConstraint(Sketcher.Constraint("DistanceY", 1, 2, 1, 1, 40.0))
sketch11.addConstraint(Sketcher.Constraint("DistanceY", -1, 1, 2, 3, 45.0))
sketch11.addConstraint(Sketcher.Constraint("DistanceX", -1, 1, 2, 3, 211.875409))
pocket10 = body.newObject("PartDesign::Pocket", "Pocket009")
pocket10.Profile = sketch11
pocket10.Length = 4

doc.recompute()
